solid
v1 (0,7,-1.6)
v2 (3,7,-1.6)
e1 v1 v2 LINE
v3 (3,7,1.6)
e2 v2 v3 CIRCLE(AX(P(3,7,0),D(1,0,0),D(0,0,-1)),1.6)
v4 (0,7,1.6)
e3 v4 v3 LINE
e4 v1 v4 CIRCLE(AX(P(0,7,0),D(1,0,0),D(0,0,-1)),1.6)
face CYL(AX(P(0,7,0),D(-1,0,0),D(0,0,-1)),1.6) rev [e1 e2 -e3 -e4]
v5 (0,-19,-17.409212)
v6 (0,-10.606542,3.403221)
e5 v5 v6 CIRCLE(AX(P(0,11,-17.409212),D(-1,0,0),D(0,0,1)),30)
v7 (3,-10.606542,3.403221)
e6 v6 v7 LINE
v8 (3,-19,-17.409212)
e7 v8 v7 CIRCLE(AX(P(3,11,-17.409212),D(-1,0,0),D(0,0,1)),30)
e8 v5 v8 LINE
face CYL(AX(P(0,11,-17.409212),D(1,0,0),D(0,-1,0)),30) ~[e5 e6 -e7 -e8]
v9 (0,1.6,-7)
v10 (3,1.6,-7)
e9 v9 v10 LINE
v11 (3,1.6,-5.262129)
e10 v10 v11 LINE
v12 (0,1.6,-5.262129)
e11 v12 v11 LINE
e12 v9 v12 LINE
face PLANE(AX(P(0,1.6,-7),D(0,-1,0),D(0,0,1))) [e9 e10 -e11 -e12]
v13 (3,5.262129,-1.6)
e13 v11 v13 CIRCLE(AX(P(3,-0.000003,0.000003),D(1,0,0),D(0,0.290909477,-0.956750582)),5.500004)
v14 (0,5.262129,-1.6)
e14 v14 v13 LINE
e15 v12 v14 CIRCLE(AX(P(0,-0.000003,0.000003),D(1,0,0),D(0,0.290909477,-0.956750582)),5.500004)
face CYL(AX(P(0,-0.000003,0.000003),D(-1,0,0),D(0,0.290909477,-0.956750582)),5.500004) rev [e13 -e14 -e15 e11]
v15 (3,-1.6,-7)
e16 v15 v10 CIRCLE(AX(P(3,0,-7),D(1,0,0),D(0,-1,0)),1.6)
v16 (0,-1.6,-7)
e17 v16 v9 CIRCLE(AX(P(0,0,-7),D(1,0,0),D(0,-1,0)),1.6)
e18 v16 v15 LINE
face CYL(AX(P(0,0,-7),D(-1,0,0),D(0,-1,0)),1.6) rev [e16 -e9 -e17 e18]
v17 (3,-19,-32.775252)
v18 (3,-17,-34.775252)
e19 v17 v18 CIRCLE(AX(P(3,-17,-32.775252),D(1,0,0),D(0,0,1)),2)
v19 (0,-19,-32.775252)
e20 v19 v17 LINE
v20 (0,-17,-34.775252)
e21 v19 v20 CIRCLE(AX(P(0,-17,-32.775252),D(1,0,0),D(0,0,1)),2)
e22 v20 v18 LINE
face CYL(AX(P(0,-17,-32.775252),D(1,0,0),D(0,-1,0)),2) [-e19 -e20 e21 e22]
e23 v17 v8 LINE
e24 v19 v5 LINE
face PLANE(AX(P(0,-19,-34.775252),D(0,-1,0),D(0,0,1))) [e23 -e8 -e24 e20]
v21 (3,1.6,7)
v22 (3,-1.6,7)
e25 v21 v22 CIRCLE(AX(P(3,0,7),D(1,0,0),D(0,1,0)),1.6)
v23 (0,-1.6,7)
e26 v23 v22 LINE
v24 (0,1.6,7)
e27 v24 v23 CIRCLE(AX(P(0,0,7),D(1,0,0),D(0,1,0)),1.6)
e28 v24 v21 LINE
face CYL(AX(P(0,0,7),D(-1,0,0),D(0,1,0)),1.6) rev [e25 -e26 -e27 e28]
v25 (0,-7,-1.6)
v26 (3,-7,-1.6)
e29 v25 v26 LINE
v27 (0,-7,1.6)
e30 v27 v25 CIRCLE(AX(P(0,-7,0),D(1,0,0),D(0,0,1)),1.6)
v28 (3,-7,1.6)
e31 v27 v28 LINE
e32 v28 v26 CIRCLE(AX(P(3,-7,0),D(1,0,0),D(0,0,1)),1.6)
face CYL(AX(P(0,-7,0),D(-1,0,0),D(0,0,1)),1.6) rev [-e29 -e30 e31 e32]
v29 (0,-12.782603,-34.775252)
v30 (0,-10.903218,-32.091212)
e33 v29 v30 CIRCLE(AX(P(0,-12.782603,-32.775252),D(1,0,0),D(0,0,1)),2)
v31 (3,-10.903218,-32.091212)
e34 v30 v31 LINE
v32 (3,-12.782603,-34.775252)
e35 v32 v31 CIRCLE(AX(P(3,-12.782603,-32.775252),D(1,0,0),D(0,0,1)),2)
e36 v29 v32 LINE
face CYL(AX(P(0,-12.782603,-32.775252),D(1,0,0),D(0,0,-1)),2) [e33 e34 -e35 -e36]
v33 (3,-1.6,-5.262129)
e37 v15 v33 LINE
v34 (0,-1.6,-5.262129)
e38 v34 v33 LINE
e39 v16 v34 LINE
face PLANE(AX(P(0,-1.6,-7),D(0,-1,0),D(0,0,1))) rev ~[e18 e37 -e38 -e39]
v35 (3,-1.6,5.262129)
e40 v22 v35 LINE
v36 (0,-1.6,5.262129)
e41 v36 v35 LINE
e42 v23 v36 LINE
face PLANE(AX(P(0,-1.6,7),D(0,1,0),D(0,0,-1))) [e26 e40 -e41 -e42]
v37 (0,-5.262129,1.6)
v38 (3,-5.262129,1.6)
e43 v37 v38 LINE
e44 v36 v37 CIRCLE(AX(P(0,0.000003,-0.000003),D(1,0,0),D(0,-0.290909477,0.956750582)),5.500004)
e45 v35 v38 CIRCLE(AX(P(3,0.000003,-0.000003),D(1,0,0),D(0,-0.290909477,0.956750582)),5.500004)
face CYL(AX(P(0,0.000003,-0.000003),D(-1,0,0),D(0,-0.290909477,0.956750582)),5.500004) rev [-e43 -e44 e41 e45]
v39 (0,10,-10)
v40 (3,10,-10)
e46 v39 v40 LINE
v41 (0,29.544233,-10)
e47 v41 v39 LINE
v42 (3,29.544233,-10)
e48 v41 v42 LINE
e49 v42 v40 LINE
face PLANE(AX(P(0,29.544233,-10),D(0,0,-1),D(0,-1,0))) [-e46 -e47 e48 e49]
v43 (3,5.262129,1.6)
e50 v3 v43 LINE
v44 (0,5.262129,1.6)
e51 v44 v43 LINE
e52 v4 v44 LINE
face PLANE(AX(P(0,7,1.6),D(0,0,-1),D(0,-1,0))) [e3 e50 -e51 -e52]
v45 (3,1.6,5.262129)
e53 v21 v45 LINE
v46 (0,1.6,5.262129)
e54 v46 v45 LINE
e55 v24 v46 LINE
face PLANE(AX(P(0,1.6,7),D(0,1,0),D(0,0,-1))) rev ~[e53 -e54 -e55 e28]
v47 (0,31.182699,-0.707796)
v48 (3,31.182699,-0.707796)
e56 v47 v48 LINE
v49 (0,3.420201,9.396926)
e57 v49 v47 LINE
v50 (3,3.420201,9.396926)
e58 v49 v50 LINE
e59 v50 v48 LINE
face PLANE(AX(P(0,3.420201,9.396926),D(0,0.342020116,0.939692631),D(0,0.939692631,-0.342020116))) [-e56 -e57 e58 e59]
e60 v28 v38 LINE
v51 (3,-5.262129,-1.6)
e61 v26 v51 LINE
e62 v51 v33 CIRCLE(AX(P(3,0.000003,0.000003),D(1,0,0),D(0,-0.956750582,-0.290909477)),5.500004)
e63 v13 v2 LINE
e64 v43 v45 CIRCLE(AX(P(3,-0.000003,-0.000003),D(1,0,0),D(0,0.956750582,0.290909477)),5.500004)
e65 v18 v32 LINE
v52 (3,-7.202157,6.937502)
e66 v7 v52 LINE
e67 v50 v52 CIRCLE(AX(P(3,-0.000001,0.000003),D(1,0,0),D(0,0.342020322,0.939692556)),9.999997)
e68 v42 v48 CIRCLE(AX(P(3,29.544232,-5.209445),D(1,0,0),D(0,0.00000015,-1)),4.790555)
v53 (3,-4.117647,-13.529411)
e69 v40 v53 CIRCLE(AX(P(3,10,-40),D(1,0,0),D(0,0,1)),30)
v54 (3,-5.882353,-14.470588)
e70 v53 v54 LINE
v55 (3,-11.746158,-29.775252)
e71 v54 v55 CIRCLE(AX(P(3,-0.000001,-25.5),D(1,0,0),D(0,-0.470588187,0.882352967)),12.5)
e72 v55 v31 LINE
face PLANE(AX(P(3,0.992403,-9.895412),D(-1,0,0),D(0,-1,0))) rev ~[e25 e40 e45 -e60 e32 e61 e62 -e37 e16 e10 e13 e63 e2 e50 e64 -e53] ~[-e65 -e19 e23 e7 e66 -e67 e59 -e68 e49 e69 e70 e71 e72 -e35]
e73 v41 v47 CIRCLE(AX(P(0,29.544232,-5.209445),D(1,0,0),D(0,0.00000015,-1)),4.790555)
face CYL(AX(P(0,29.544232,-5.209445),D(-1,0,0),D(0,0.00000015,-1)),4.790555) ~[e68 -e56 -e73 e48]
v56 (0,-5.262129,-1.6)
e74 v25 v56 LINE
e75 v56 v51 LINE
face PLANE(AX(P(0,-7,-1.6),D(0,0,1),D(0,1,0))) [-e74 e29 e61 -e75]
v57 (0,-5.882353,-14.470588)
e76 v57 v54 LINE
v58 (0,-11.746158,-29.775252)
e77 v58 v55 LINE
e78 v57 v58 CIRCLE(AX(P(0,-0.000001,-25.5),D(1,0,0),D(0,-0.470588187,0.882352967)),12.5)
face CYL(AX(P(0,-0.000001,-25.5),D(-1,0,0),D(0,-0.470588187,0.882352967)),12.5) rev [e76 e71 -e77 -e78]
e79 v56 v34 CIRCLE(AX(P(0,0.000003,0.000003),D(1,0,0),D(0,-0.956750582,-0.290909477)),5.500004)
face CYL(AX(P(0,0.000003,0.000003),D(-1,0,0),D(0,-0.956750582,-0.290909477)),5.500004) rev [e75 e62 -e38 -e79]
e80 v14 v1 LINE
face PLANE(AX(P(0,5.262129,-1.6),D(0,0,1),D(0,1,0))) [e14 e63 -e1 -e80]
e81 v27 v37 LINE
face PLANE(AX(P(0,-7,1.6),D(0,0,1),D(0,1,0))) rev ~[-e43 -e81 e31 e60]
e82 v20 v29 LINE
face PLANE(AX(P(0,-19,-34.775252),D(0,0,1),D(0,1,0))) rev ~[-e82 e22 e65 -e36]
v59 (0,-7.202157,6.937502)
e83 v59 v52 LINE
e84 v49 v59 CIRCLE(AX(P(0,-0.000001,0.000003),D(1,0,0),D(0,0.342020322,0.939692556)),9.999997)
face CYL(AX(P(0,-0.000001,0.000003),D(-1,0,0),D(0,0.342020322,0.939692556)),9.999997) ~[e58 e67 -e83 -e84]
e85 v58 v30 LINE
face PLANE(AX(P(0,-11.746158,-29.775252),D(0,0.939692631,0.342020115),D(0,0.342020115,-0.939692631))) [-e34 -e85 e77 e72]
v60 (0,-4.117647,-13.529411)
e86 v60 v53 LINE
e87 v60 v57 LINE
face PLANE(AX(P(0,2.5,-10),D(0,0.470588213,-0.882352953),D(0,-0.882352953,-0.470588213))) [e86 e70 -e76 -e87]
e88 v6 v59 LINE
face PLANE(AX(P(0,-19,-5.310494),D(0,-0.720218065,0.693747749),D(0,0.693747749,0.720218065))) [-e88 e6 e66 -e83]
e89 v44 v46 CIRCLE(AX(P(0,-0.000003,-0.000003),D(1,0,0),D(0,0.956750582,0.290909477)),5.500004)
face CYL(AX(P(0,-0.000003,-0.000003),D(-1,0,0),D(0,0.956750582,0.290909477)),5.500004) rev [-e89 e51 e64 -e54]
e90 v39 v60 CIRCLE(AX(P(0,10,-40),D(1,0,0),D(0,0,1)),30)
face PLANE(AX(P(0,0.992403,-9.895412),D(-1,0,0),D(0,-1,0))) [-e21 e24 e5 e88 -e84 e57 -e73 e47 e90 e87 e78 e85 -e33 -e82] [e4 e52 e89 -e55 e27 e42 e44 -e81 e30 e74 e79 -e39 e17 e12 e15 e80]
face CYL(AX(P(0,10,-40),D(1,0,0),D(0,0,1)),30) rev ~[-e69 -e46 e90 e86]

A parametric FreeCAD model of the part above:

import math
import FreeCAD as App
import Part
import Sketcher

V = App.Vector
Q = App.Units.Quantity


def edges_at(feature, points):
    """Names of the edges that pass closest to the given points."""
    edges = feature.Shape.Edges
    near = lambda p: min(range(len(edges)), key=lambda i: edges[i].distToShape(Part.Vertex(*p))[0])
    return sorted({f"Edge{near(p) + 1}" for p in points})

doc = App.newDocument("Part")
body = doc.addObject("PartDesign::Body", "Body")

# Sketch on YZ plane
sketch1 = body.newObject("Sketcher::SketchObject", "Sketch")
sketch1.AttachmentSupport = (doc.getObject("YZ_Plane"), [""])
sketch1.MapMode = "FlatFace"
sketch1.addGeometry(Part.LineSegment(V(-19, -5.3, 0), V(-19, -34.8, 0)), False)
sketch1.addGeometry(Part.LineSegment(V(-19, -34.8, 0), V(-9.9, -34.8, 0)), False)
sketch1.addGeometry(Part.LineSegment(V(-9.9, -34.8, 0), V(-11.7, -29.8, 0)), False)
sketch1.addGeometry(Part.ArcOfCircle(Part.Circle(V(0, -25.5, 0), V(0, 0, 1), 12.5), math.radians(118), math.radians(200)), False)
sketch1.addGeometry(Part.LineSegment(V(-5.9, -14.5, 0), V(2.5, -10, 0)), False)
sketch1.addGeometry(Part.LineSegment(V(2.5, -10, 0), V(29.5, -10, 0)), False)
sketch1.addGeometry(Part.ArcOfCircle(Part.Circle(V(29.5, -5.2, 0), V(0, 0, 1), 4.8), math.radians(-90), math.radians(70)), False)
sketch1.addGeometry(Part.LineSegment(V(31.2, -0.7, 0), V(3.4, 9.4, 0)), False)
sketch1.addGeometry(Part.ArcOfCircle(Part.Circle(V(0, 0, 0), V(0, 0, 1), 10), math.radians(70), math.radians(136)), False)
sketch1.addGeometry(Part.LineSegment(V(-7.2, 6.9, 0), V(-19, -5.3, 0)), False)
sketch1.addGeometry(Part.LineSegment(V(-7, 1.6, 0), V(-5.3, 1.6, 0)), False)
sketch1.addGeometry(Part.ArcOfCircle(Part.Circle(V(0, 0, 0), V(0, 0, 1), 5.5), math.radians(107), math.radians(163)), False)
sketch1.addGeometry(Part.LineSegment(V(-1.6, 5.3, 0), V(-1.6, 7, 0)), False)
sketch1.addGeometry(Part.ArcOfCircle(Part.Circle(V(0, 7, 0), V(0, 0, 1), 1.6), math.radians(0), math.radians(180)), False)
sketch1.addGeometry(Part.LineSegment(V(1.6, 7, 0), V(1.6, 5.3, 0)), False)
sketch1.addGeometry(Part.ArcOfCircle(Part.Circle(V(0, 0, 0), V(0, 0, 1), 5.5), math.radians(17), math.radians(73)), False)
sketch1.addGeometry(Part.LineSegment(V(5.3, 1.6, 0), V(7, 1.6, 0)), False)
sketch1.addGeometry(Part.ArcOfCircle(Part.Circle(V(7, 0, 0), V(0, 0, 1), 1.6), math.radians(-90), math.radians(90)), False)
sketch1.addGeometry(Part.LineSegment(V(7, -1.6, 0), V(5.3, -1.6, 0)), False)
sketch1.addGeometry(Part.ArcOfCircle(Part.Circle(V(0, 0, 0), V(0, 0, 1), 5.5), math.radians(-73), math.radians(-17)), False)
sketch1.addGeometry(Part.LineSegment(V(1.6, -5.3, 0), V(1.6, -7, 0)), False)
sketch1.addGeometry(Part.ArcOfCircle(Part.Circle(V(0, -7, 0), V(0, 0, 1), 1.6), math.radians(180), math.radians(360)), False)
sketch1.addGeometry(Part.LineSegment(V(-1.6, -7, 0), V(-1.6, -5.3, 0)), False)
sketch1.addGeometry(Part.ArcOfCircle(Part.Circle(V(0, 0, 0), V(0, 0, 1), 5.5), math.radians(-163), math.radians(-107)), False)
sketch1.addGeometry(Part.LineSegment(V(-5.3, -1.6, 0), V(-7, -1.6, 0)), False)
sketch1.addGeometry(Part.ArcOfCircle(Part.Circle(V(-7, 0, 0), V(0, 0, 1), 1.6), math.radians(90), math.radians(270)), False)
sketch1.addConstraint(Sketcher.Constraint("Coincident", 0, 2, 1, 1))
sketch1.addConstraint(Sketcher.Constraint("Coincident", 1, 2, 2, 1))
sketch1.addConstraint(Sketcher.Constraint("Tangent", 2, 2, 3, 2))
sketch1.addConstraint(Sketcher.Constraint("Tangent", 3, 1, 4, 1))
sketch1.addConstraint(Sketcher.Constraint("Coincident", 4, 2, 5, 1))
sketch1.addConstraint(Sketcher.Constraint("Tangent", 5, 2, 6, 1))
sketch1.addConstraint(Sketcher.Constraint("Tangent", 6, 2, 7, 1))
sketch1.addConstraint(Sketcher.Constraint("Tangent", 7, 2, 8, 1))
sketch1.addConstraint(Sketcher.Constraint("Coincident", 8, 2, 9, 1))
sketch1.addConstraint(Sketcher.Constraint("Coincident", 9, 2, 0, 1))
sketch1.addConstraint(Sketcher.Constraint("Coincident", 10, 2, 11, 2))
sketch1.addConstraint(Sketcher.Constraint("Coincident", 11, 1, 12, 1))
sketch1.addConstraint(Sketcher.Constraint("Tangent", 12, 2, 13, 2))
sketch1.addConstraint(Sketcher.Constraint("Tangent", 13, 1, 14, 1))
sketch1.addConstraint(Sketcher.Constraint("Coincident", 14, 2, 15, 2))
sketch1.addConstraint(Sketcher.Constraint("Coincident", 15, 1, 16, 1))
sketch1.addConstraint(Sketcher.Constraint("Tangent", 16, 2, 17, 2))
sketch1.addConstraint(Sketcher.Constraint("Tangent", 17, 1, 18, 1))
sketch1.addConstraint(Sketcher.Constraint("Coincident", 18, 2, 19, 2))
sketch1.addConstraint(Sketcher.Constraint("Coincident", 19, 1, 20, 1))
sketch1.addConstraint(Sketcher.Constraint("Tangent", 20, 2, 21, 2))
sketch1.addConstraint(Sketcher.Constraint("Tangent", 21, 1, 22, 1))
sketch1.addConstraint(Sketcher.Constraint("Coincident", 22, 2, 23, 2))
sketch1.addConstraint(Sketcher.Constraint("Coincident", 23, 1, 24, 1))
sketch1.addConstraint(Sketcher.Constraint("Tangent", 24, 2, 25, 2))
sketch1.addConstraint(Sketcher.Constraint("Tangent", 25, 1, 10, 1))
sketch1.addConstraint(Sketcher.Constraint("Vertical", 0))
sketch1.addConstraint(Sketcher.Constraint("Horizontal", 1))
sketch1.addConstraint(Sketcher.Constraint("Horizontal", 5))
sketch1.addConstraint(Sketcher.Constraint("Horizontal", 10))
sketch1.addConstraint(Sketcher.Constraint("Vertical", 12))
sketch1.addConstraint(Sketcher.Constraint("Vertical", 14))
sketch1.addConstraint(Sketcher.Constraint("Horizontal", 16))
sketch1.addConstraint(Sketcher.Constraint("Horizontal", 18))
sketch1.addConstraint(Sketcher.Constraint("Vertical", 20))
sketch1.addConstraint(Sketcher.Constraint("Vertical", 22))
sketch1.addConstraint(Sketcher.Constraint("Horizontal", 24))
sketch1.addConstraint(Sketcher.Constraint("Coincident", 8, 3, -1, 1))
sketch1.addConstraint(Sketcher.Constraint("Coincident", 11, 3, -1, 1))
sketch1.addConstraint(Sketcher.Constraint("Coincident", 15, 3, -1, 1))
sketch1.addConstraint(Sketcher.Constraint("Coincident", 19, 3, -1, 1))
sketch1.addConstraint(Sketcher.Constraint("Coincident", 23, 3, -1, 1))
sketch1.addConstraint(Sketcher.Constraint("Equal", 11, 15))
sketch1.addConstraint(Sketcher.Constraint("Equal", 13, 17))
sketch1.addConstraint(Sketcher.Constraint("Equal", 15, 19))
sketch1.addConstraint(Sketcher.Constraint("Equal", 17, 21))
sketch1.addConstraint(Sketcher.Constraint("Equal", 19, 23))
sketch1.addConstraint(Sketcher.Constraint("Equal", 21, 25))
sketch1.addConstraint(Sketcher.Constraint("Symmetric", 13, 3, 21, 3, -1, 1))
sketch1.addConstraint(Sketcher.Constraint("Symmetric", 17, 3, 25, 3, -1, 1))
sketch1.addConstraint(Sketcher.Constraint("PointOnObject", 3, 3, -2))
sketch1.addConstraint(Sketcher.Constraint("PointOnObject", 13, 3, -2))
sketch1.addConstraint(Sketcher.Constraint("PointOnObject", 17, 3, -1))
sketch1.addConstraint(Sketcher.Constraint("Equal", 24, 12))
sketch1.addConstraint(Sketcher.Constraint("Radius", 3, 12.5))
sketch1.addConstraint(Sketcher.Constraint("Radius", 13, 1.6))
sketch1.addConstraint(Sketcher.Constraint("Angle", 2, Q("109.999998 deg")))
sketch1.addConstraint(Sketcher.Constraint("Angle", 7, Q("160.000002 deg")))
sketch1.addConstraint(Sketcher.Constraint("DistanceY", -1, 1, 13, 3, 7.0))
sketch1.addConstraint(Sketcher.Constraint("DistanceX", 0, 2, -1, 1, 19.0))
sketch1.addConstraint(Sketcher.Constraint("DistanceY", 4, 2, -1, 1, 10.0))
sketch1.addConstraint(Sketcher.Constraint("DistanceY", 1, 2, 2, 2, 5.0))
sketch1.addConstraint(Sketcher.Constraint("Distance", 4, 9.5))
sketch1.addConstraint(Sketcher.Constraint("DistanceY", 3, 3, -1, 1, 25.5))
sketch1.addConstraint(Sketcher.Constraint("Radius", 6, 4.790555))
sketch1.addConstraint(Sketcher.Constraint("Radius", 8, 9.999997))
sketch1.addConstraint(Sketcher.Constraint("Radius", 11, 5.500004))
sketch1.addConstraint(Sketcher.Constraint("DistanceY", 0, 2, 0, 1, 29.464758))
sketch1.addConstraint(Sketcher.Constraint("DistanceY", 19, 3, 8, 2, 6.937499))
pad1 = body.newObject("PartDesign::Pad", "Pad")
pad1.Profile = sketch1
pad1.Length = 3
doc.recompute()

fillet = body.newObject("PartDesign::Fillet", "Fillet")
fillet.Base = (pad1, edges_at(pad1, [(1.5, -9.926, -34.775), (1.5, -19, -34.775)]))
fillet.Radius = 2
doc.recompute()

fillet2 = body.newObject("PartDesign::Fillet", "Fillet001")
fillet2.Base = (fillet, edges_at(fillet, [(1.5, -19, -5.31), (1.5, 2.5, -10)]))
fillet2.Radius = 30

doc.recompute()
